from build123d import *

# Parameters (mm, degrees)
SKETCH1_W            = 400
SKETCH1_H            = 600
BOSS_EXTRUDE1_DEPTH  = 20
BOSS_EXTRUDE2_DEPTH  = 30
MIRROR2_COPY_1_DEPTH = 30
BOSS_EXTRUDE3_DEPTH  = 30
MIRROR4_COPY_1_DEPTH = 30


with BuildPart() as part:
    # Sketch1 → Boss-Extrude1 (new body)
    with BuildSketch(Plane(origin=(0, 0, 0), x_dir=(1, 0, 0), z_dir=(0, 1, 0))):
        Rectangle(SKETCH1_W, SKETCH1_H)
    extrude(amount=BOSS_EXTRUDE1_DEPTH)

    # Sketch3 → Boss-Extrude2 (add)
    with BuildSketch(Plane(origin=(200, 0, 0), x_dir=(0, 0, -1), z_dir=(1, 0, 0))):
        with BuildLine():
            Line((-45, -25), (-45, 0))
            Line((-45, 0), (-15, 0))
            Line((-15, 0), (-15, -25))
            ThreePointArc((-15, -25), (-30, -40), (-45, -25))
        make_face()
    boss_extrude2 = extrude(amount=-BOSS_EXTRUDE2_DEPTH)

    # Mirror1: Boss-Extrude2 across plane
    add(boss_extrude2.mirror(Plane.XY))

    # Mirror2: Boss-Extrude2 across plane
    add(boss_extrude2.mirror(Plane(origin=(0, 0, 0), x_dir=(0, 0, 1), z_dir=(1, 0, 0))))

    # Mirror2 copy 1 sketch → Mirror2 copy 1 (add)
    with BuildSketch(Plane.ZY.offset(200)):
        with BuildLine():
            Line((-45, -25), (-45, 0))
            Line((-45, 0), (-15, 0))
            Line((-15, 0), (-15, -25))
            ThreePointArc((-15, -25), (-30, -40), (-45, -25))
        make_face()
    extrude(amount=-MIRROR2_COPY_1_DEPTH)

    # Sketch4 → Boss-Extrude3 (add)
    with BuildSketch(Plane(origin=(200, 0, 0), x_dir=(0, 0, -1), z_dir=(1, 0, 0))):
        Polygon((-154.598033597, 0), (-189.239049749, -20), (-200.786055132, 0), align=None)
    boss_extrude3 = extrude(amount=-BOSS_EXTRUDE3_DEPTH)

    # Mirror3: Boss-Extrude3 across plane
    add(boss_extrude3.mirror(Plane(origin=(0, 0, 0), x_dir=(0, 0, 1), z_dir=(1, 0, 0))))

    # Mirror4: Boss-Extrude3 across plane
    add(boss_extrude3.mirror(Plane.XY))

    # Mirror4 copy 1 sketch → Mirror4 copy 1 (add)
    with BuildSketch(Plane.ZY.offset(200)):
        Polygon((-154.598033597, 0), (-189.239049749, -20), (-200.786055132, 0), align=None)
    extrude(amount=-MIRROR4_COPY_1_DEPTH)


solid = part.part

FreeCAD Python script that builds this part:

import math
import FreeCAD as App
import Part
import Sketcher
from FreeCAD import Vector
Q = App.Units.Quantity

doc = App.newDocument("Part")
body = doc.addObject("PartDesign::Body", "Body")

sketch1 = doc.addObject("Sketcher::SketchObject", "Sketch")
body.addObject(sketch1)
sketch1.AttachmentSupport = (doc.XZ_Plane, [""])
sketch1.MapMode = "FlatFace"
sketch1.addGeometry([
    Part.LineSegment(Vector(-200, -300, 0), Vector(-200, 300, 0)),
    Part.LineSegment(Vector(-200, 300, 0), Vector(200, 300, 0)),
    Part.LineSegment(Vector(200, 300, 0), Vector(200, -300, 0)),
    Part.LineSegment(Vector(200, -300, 0), Vector(-200, -300, 0)),
], False)
sketch1.addConstraint([
    Sketcher.Constraint("Coincident", 0, 2, 1, 1),
    Sketcher.Constraint("Coincident", 1, 2, 2, 1),
    Sketcher.Constraint("Coincident", 2, 2, 3, 1),
    Sketcher.Constraint("Coincident", 3, 2, 0, 1),
    Sketcher.Constraint("Vertical", 0),
    Sketcher.Constraint("Horizontal", 1),
    Sketcher.Constraint("Vertical", 2),
    Sketcher.Constraint("Horizontal", 3),
    Sketcher.Constraint("Symmetric", 0, 2, 2, 2, -1, 1),
    Sketcher.Constraint("DistanceX", 1, 1, 1, 2, 400.0),
    Sketcher.Constraint("DistanceY", 0, 1, 0, 2, 600.0),
])
pad1 = doc.addObject("PartDesign::Pad", "Pad")
body.addObject(pad1)
pad1.Profile = sketch1
pad1.Length = 20
pad1.Reversed = True

sketch2 = doc.addObject("Sketcher::SketchObject", "Sketch001")
body.addObject(sketch2)
sketch2.AttachmentSupport = (doc.YZ_Plane, [""])
sketch2.MapMode = "FlatFace"
sketch2.AttachmentOffset = App.Placement(Vector(0, 0, 200), App.Rotation())
sketch2.addGeometry([
    Part.LineSegment(Vector(0, 45, 0), Vector(-25, 45, 0)),
    Part.ArcOfCircle(Part.Circle(Vector(-25, 30, 0), Vector(0, 0, 1), 15), math.radians(90), math.radians(270)),
    Part.LineSegment(Vector(-25, 15, 0), Vector(0, 15, 0)),
    Part.LineSegment(Vector(0, 15, 0), Vector(0, 45, 0)),
], False)
sketch2.addConstraint([
    Sketcher.Constraint("Tangent", 0, 2, 1, 1),
    Sketcher.Constraint("Tangent", 1, 2, 2, 1),
    Sketcher.Constraint("Coincident", 2, 2, 3, 1),
    Sketcher.Constraint("Coincident", 3, 2, 0, 1),
    Sketcher.Constraint("Horizontal", 0),
    Sketcher.Constraint("Horizontal", 2),
    Sketcher.Constraint("Vertical", 3),
    Sketcher.Constraint("PointOnObject", 2, 2, -2),
    Sketcher.Constraint("Radius", 1, 15.0),
    Sketcher.Constraint("DistanceX", 0, 2, 0, 1, 25.0),
    Sketcher.Constraint("DistanceY", -1, 1, 1, 3, 30.0),
])
pad2 = doc.addObject("PartDesign::Pad", "Pad001")
body.addObject(pad2)
pad2.Profile = sketch2
pad2.Length = 30
pad2.Reversed = True
doc.recompute()

mirrored = doc.addObject("PartDesign::Mirrored", "Mirrored")
body.addObject(mirrored)
mirrored.Originals = [pad2]
mirrored.MirrorPlane = (doc.XY_Plane, [""])
body.Tip = mirrored
doc.recompute()

mirrored2 = doc.addObject("PartDesign::Mirrored", "Mirrored001")
body.addObject(mirrored2)
mirrored2.Originals = [pad2]
mirrored2.MirrorPlane = (doc.YZ_Plane, [""])
body.Tip = mirrored2

sketch3 = doc.addObject("Sketcher::SketchObject", "Sketch002")
body.addObject(sketch3)
sketch3.AttachmentSupport = (doc.YZ_Plane, [""])
sketch3.MapMode = "FlatFace"
sketch3.AttachmentOffset = App.Placement(Vector(0, 0, -200), App.Rotation())
sketch3.addGeometry([
    Part.LineSegment(Vector(0, -45, 0), Vector(-25, -45, 0)),
    Part.ArcOfCircle(Part.Circle(Vector(-25, -30, 0), Vector(0, 0, 1), 15), math.radians(90), math.radians(270)),
    Part.LineSegment(Vector(-25, -15, 0), Vector(0, -15, 0)),
    Part.LineSegment(Vector(0, -15, 0), Vector(0, -45, 0)),
], False)
sketch3.addConstraint([
    Sketcher.Constraint("Tangent", 0, 2, 1, 2),
    Sketcher.Constraint("Tangent", 1, 1, 2, 1),
    Sketcher.Constraint("Coincident", 2, 2, 3, 1),
    Sketcher.Constraint("Coincident", 3, 2, 0, 1),
    Sketcher.Constraint("Horizontal", 0),
    Sketcher.Constraint("Horizontal", 2),
    Sketcher.Constraint("Vertical", 3),
    Sketcher.Constraint("PointOnObject", 2, 2, -2),
    Sketcher.Constraint("Radius", 1, 15.0),
    Sketcher.Constraint("DistanceX", 0, 2, 0, 1, 25.0),
    Sketcher.Constraint("DistanceY", 1, 3, -1, 1, 30.0),
])
pad3 = doc.addObject("PartDesign::Pad", "Pad002")
body.addObject(pad3)
pad3.Profile = sketch3
pad3.Length = 30

sketch4 = doc.addObject("Sketcher::SketchObject", "Sketch003")
body.addObject(sketch4)
sketch4.AttachmentSupport = (doc.YZ_Plane, [""])
sketch4.MapMode = "FlatFace"
sketch4.AttachmentOffset = App.Placement(Vector(0, 0, 200), App.Rotation())
sketch4.addGeometry([
    Part.LineSegment(Vector(-20, 189, 0), Vector(0, 155, 0)),
    Part.LineSegment(Vector(0, 155, 0), Vector(0, 201, 0)),
    Part.LineSegment(Vector(0, 201, 0), Vector(-20, 189, 0)),
], False)
sketch4.addConstraint([
    Sketcher.Constraint("Coincident", 0, 2, 1, 1),
    Sketcher.Constraint("Coincident", 1, 2, 2, 1),
    Sketcher.Constraint("Coincident", 2, 2, 0, 1),
    Sketcher.Constraint("Vertical", 1),
    Sketcher.Constraint("PointOnObject", 0, 2, -2),
    Sketcher.Constraint("Perpendicular", 0, 2),
    Sketcher.Constraint("Angle", 0, Q("-60 deg")),
    Sketcher.Constraint("Distance", 0, 40.0),
    Sketcher.Constraint("DistanceY", -1, 1, 2, 2, 189.23905),
])
pad4 = doc.addObject("PartDesign::Pad", "Pad003")
body.addObject(pad4)
pad4.Profile = sketch4
pad4.Length = 30
pad4.Reversed = True
doc.recompute()

mirrored3 = doc.addObject("PartDesign::Mirrored", "Mirrored002")
body.addObject(mirrored3)
mirrored3.Originals = [pad4]
mirrored3.MirrorPlane = (doc.YZ_Plane, [""])
body.Tip = mirrored3
doc.recompute()

mirrored4 = doc.addObject("PartDesign::Mirrored", "Mirrored003")
body.addObject(mirrored4)
mirrored4.Originals = [pad4]
mirrored4.MirrorPlane = (doc.XY_Plane, [""])
body.Tip = mirrored4

sketch5 = doc.addObject("Sketcher::SketchObject", "Sketch004")
body.addObject(sketch5)
sketch5.AttachmentSupport = (doc.YZ_Plane, [""])
sketch5.MapMode = "FlatFace"
sketch5.AttachmentOffset = App.Placement(Vector(0, 0, -200), App.Rotation())
sketch5.addGeometry([
    Part.LineSegment(Vector(-20, -189, 0), Vector(0, -155, 0)),
    Part.LineSegment(Vector(0, -155, 0), Vector(0, -201, 0)),
    Part.LineSegment(Vector(0, -201, 0), Vector(-20, -189, 0)),
], False)
sketch5.addConstraint([
    Sketcher.Constraint("Coincident", 0, 2, 1, 1),
    Sketcher.Constraint("Coincident", 1, 2, 2, 1),
    Sketcher.Constraint("Coincident", 2, 2, 0, 1),
    Sketcher.Constraint("Vertical", 1),
    Sketcher.Constraint("PointOnObject", 0, 2, -2),
    Sketcher.Constraint("Perpendicular", 0, 2),
    Sketcher.Constraint("Angle", 0, Q("60 deg")),
    Sketcher.Constraint("Distance", 0, 40.0),
    Sketcher.Constraint("DistanceY", 2, 2, -1, 1, 189.23905),
])
pad5 = doc.addObject("PartDesign::Pad", "Pad004")
body.addObject(pad5)
pad5.Profile = sketch5
pad5.Length = 30

doc.recompute()
